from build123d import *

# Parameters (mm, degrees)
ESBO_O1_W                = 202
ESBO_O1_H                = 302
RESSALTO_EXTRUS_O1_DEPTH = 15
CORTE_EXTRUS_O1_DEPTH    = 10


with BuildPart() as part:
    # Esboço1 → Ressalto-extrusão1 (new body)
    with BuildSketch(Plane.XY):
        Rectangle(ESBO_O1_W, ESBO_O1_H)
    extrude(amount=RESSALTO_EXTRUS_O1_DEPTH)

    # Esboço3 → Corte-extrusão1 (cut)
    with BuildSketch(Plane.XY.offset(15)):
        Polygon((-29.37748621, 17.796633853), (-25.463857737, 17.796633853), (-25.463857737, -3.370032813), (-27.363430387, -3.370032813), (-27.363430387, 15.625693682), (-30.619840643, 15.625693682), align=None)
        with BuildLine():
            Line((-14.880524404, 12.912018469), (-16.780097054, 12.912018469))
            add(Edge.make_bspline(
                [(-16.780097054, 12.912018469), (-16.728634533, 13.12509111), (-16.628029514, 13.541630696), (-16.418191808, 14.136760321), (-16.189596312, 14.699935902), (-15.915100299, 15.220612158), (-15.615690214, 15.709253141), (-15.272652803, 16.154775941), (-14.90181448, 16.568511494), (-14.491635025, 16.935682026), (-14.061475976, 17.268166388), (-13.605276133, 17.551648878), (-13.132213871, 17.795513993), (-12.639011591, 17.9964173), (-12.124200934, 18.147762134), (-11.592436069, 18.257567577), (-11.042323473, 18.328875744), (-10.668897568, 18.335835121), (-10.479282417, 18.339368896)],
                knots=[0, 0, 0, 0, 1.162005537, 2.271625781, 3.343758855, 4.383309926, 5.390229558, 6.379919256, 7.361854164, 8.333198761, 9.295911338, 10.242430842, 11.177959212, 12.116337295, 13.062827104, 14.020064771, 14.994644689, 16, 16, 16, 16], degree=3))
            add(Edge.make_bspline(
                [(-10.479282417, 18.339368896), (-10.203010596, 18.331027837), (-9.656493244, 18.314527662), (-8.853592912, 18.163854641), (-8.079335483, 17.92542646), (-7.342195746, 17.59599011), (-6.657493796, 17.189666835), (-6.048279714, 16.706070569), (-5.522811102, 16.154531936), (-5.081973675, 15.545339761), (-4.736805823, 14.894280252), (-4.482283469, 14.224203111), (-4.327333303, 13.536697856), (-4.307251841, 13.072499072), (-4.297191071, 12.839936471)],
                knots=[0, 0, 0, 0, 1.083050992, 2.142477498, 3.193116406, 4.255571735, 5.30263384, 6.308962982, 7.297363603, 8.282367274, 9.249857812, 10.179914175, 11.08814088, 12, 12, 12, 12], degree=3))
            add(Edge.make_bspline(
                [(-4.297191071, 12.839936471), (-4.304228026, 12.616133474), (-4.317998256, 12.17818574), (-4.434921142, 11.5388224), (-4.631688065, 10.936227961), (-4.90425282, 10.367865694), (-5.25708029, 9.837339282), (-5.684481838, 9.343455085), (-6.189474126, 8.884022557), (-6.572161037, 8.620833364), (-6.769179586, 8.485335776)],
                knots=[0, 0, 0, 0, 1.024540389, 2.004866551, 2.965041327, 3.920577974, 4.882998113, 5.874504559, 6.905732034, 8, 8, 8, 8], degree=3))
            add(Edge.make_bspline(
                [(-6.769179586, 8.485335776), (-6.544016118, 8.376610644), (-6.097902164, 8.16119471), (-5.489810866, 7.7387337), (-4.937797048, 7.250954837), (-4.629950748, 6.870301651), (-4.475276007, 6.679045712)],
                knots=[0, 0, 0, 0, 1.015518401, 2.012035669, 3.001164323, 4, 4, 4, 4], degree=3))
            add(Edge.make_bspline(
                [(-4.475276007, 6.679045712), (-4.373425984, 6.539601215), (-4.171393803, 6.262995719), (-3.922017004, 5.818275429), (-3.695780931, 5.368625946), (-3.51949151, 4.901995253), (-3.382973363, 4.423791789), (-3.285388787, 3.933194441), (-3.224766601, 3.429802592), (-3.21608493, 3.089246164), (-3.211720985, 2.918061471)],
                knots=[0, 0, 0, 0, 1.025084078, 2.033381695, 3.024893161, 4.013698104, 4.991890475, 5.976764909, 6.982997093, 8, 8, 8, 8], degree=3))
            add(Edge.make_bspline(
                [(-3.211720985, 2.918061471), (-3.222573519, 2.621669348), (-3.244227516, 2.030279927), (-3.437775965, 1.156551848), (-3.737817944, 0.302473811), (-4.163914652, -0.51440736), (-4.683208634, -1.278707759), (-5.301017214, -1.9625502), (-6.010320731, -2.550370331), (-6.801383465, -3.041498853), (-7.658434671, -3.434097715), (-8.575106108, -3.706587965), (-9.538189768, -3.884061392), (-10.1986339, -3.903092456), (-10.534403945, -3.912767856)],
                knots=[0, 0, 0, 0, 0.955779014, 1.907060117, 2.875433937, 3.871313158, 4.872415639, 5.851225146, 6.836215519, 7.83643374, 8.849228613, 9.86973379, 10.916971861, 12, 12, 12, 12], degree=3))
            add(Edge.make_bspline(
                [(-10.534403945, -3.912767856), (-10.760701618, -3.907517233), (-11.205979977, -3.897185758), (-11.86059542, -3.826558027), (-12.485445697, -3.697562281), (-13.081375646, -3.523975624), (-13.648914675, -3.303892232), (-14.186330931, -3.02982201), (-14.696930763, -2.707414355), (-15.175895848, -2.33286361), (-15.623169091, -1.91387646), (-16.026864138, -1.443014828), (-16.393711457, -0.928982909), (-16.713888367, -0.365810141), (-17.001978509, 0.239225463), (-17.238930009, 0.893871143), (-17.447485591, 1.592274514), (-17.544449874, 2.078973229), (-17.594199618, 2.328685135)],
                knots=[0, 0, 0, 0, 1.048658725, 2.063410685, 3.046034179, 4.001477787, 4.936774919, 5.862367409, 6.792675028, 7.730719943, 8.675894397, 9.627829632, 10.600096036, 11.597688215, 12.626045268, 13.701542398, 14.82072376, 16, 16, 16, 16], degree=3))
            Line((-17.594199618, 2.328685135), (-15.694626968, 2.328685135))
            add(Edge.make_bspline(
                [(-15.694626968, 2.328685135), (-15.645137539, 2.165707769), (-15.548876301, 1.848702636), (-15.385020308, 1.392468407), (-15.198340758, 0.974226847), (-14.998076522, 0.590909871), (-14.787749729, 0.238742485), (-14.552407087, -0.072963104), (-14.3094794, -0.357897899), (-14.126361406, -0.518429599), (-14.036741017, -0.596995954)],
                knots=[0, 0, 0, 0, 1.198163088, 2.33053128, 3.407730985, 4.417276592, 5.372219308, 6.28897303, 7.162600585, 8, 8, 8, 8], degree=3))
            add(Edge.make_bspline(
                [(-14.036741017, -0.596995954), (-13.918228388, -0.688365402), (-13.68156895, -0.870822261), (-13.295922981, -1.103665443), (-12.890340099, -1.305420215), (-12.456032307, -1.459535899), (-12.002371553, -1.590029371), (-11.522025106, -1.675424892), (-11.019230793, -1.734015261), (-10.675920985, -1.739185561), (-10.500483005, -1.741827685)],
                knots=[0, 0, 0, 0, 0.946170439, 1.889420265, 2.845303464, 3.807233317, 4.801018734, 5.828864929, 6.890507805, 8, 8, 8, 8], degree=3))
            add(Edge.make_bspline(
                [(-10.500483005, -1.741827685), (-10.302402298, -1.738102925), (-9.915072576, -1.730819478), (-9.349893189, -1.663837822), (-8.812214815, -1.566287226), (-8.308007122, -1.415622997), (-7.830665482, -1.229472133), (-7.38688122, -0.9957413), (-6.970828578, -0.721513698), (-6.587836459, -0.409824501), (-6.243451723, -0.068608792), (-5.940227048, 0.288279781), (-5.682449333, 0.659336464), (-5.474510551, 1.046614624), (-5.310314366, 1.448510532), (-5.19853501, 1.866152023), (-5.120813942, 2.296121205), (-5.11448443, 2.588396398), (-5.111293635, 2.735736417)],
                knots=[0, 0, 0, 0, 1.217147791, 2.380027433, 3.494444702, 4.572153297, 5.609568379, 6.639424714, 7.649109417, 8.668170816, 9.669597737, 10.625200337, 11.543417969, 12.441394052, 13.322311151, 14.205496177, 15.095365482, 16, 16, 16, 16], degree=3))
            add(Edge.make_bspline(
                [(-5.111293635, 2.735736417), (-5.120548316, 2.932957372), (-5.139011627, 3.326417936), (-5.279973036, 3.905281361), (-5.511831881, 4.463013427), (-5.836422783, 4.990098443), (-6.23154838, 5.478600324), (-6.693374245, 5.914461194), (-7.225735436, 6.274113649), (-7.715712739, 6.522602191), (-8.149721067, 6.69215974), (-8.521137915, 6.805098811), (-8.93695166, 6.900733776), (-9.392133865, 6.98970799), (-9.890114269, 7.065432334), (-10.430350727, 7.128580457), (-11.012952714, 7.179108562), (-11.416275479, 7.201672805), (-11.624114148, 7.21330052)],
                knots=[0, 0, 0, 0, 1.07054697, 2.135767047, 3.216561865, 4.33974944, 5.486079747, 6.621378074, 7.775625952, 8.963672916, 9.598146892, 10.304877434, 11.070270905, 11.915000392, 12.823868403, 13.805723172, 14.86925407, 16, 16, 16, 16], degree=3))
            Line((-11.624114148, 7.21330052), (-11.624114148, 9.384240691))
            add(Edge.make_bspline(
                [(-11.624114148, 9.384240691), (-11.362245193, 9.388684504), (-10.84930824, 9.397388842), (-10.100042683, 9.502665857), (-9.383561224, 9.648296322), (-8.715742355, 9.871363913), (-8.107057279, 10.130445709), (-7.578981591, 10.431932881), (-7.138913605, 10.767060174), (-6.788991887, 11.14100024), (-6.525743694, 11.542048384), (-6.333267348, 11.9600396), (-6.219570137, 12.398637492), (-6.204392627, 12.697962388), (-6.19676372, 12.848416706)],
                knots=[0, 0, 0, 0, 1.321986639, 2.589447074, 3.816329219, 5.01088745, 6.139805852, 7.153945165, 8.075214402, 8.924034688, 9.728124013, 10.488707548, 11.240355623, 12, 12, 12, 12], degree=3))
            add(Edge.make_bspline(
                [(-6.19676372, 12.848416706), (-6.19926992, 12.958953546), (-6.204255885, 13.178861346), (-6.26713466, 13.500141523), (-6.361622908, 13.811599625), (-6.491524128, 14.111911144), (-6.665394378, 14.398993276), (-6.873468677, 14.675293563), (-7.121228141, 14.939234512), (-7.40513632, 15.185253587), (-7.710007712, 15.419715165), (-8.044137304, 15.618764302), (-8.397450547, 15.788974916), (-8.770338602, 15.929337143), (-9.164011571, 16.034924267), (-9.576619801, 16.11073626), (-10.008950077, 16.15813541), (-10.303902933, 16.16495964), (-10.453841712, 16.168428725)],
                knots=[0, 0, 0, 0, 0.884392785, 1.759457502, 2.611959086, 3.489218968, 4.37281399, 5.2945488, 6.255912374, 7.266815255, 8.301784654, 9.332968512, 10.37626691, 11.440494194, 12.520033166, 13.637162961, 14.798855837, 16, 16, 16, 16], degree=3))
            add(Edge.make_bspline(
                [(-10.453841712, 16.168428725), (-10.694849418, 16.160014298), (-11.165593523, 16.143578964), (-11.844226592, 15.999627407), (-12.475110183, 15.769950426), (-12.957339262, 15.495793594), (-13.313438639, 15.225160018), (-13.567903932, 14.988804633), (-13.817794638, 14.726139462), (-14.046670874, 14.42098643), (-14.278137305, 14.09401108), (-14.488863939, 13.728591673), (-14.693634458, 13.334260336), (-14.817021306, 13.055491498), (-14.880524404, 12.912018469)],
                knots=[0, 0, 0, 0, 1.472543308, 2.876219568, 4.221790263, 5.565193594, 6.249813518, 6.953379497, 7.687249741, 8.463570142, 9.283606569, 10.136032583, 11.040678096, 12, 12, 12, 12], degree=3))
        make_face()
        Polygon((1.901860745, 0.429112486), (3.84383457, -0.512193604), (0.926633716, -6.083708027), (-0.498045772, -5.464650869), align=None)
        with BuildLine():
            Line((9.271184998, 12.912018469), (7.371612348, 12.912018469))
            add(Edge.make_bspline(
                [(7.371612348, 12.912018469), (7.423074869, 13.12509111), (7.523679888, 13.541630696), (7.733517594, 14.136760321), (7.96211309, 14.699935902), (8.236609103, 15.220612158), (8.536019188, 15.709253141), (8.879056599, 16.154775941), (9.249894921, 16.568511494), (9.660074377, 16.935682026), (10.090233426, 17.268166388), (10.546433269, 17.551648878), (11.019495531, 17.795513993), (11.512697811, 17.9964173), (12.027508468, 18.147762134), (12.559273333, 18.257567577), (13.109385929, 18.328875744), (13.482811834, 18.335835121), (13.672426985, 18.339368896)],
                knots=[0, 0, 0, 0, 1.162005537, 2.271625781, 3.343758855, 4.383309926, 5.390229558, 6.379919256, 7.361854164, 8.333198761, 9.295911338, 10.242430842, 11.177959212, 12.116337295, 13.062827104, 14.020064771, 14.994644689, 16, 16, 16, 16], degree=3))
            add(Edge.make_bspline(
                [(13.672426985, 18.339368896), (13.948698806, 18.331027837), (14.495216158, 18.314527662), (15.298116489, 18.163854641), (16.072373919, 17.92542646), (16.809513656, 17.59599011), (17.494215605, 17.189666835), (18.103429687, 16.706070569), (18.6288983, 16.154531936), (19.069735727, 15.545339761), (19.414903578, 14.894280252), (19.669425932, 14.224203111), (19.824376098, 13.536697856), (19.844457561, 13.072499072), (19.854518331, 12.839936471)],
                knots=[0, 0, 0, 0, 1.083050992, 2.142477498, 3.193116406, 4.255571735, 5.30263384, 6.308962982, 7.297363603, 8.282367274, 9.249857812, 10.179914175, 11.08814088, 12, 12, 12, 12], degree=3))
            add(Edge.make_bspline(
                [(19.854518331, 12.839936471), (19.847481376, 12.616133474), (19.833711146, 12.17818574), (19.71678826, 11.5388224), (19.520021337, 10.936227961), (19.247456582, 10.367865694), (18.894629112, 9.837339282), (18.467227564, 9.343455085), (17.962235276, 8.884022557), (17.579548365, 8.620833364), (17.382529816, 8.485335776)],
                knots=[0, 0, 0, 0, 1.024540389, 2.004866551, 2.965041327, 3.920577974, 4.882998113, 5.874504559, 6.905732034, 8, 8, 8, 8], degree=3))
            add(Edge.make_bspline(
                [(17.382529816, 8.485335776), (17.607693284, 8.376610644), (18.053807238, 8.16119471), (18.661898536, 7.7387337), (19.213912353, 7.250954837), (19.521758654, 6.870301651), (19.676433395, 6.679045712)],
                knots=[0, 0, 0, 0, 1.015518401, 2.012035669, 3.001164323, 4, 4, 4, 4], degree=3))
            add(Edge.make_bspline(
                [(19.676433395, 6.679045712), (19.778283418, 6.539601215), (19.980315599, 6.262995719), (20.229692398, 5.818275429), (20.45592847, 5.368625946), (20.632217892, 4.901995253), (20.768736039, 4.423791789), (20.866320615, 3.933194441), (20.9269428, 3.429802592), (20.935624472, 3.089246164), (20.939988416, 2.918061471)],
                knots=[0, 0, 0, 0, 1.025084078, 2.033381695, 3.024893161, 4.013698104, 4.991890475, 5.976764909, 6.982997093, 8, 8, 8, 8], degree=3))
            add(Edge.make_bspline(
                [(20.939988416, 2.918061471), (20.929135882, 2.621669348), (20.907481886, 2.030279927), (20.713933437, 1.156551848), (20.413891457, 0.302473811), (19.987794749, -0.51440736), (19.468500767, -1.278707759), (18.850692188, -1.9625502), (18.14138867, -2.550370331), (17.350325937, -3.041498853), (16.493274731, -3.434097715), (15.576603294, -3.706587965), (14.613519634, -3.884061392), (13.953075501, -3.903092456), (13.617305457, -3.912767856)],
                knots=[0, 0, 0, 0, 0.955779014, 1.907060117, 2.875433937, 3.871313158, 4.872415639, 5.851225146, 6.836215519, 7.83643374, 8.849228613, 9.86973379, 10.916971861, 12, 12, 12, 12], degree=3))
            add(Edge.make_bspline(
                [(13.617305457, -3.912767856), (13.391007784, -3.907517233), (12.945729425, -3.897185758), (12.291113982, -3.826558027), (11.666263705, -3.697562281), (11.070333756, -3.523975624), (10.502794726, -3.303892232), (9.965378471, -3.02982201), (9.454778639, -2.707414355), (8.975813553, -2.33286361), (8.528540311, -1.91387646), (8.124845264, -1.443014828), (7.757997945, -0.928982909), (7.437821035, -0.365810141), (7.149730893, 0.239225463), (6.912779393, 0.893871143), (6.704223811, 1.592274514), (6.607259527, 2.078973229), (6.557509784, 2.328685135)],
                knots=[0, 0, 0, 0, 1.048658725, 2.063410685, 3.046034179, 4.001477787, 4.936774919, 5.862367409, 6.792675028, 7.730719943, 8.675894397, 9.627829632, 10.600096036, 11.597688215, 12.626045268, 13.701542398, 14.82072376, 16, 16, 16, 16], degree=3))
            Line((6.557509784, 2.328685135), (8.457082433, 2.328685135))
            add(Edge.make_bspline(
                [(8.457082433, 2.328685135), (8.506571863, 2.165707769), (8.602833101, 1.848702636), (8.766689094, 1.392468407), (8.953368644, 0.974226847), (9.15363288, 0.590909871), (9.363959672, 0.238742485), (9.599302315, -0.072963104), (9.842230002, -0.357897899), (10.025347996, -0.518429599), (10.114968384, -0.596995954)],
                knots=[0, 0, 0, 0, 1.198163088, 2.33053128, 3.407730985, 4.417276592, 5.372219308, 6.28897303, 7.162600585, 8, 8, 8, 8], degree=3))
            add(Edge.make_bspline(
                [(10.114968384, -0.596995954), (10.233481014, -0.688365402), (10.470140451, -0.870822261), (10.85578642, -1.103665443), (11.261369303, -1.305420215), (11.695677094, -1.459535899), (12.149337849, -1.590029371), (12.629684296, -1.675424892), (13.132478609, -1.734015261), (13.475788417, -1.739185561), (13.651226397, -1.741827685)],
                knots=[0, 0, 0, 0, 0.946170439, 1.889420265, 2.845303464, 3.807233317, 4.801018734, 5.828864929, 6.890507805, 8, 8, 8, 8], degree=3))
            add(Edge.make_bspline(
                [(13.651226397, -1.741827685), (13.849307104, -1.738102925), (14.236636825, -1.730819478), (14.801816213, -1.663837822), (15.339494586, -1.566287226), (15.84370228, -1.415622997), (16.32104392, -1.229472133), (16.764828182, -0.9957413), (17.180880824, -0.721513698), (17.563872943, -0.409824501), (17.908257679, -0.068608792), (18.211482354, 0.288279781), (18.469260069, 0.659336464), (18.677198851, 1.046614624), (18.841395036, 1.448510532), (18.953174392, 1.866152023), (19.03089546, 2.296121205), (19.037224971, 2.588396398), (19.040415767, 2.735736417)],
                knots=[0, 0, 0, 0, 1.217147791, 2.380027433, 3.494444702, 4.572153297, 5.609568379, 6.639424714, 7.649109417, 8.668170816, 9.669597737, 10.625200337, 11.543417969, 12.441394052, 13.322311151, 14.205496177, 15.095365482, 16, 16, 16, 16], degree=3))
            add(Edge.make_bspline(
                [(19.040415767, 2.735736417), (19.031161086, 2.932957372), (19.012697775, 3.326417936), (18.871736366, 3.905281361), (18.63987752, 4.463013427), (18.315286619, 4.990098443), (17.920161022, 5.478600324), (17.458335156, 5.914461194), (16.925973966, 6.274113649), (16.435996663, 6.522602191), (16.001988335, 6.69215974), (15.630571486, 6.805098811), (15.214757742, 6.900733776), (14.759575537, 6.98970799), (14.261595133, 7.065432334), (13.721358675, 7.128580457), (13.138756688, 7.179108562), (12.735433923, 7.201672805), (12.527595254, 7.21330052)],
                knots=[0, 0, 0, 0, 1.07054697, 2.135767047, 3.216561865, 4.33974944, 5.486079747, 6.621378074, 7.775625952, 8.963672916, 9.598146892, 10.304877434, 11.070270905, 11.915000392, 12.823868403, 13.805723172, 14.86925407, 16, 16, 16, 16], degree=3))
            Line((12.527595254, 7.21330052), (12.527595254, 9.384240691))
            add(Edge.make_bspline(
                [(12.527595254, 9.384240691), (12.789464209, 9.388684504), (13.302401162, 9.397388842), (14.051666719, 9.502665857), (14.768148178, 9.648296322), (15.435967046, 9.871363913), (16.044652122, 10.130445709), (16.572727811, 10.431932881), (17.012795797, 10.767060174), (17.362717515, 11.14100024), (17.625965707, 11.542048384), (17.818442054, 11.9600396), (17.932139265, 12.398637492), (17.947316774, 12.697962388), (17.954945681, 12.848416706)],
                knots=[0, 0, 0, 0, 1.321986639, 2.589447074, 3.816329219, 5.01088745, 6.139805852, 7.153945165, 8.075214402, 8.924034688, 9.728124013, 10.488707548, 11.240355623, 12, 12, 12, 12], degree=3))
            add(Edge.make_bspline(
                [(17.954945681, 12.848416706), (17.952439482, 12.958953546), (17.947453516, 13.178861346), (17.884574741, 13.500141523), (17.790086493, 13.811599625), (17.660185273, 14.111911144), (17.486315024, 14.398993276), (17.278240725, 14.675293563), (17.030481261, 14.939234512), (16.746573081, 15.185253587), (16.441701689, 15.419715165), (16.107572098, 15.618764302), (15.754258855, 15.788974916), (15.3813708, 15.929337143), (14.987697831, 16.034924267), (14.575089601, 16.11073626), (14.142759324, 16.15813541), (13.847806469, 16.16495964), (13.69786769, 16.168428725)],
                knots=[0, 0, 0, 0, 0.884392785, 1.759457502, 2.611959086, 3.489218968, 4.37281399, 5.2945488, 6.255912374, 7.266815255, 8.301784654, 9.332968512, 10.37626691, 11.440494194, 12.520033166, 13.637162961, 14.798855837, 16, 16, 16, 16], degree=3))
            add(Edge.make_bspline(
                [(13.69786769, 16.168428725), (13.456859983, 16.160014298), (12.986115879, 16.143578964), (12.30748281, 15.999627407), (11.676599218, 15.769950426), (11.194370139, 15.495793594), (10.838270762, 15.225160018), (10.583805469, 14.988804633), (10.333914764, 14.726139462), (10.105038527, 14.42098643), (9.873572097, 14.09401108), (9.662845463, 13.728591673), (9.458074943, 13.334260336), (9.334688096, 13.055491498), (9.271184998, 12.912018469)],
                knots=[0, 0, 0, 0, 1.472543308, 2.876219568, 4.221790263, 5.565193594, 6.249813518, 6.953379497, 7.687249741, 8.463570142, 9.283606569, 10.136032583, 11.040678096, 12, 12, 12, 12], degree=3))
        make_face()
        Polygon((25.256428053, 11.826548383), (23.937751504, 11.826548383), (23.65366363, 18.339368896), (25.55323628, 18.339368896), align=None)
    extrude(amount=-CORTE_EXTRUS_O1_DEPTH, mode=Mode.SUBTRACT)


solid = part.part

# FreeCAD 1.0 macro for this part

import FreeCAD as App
import Part
import Sketcher

doc = App.newDocument("Part")
body = doc.addObject("PartDesign::Body", "Body")

# Sketch on XY plane
sketch1 = body.newObject("Sketcher::SketchObject", "Sketch")
sketch1.AttachmentSupport = (doc.getObject("XY_Plane"), [""])
sketch1.MapMode = "FlatFace"
sketch1.addGeometry([
    Part.LineSegment(App.Vector(-101, 151, 0), App.Vector(-101, -151, 0)),
    Part.LineSegment(App.Vector(-101, -151, 0), App.Vector(101, -151, 0)),
    Part.LineSegment(App.Vector(101, -151, 0), App.Vector(101, 151, 0)),
    Part.LineSegment(App.Vector(101, 151, 0), App.Vector(-101, 151, 0)),
], False)
sketch1.addConstraint([
    Sketcher.Constraint("Coincident", 0, 2, 1, 1),
    Sketcher.Constraint("Coincident", 1, 2, 2, 1),
    Sketcher.Constraint("Coincident", 2, 2, 3, 1),
    Sketcher.Constraint("Coincident", 3, 2, 0, 1),
    Sketcher.Constraint("Vertical", 0),
    Sketcher.Constraint("Horizontal", 1),
    Sketcher.Constraint("Vertical", 2),
    Sketcher.Constraint("Horizontal", 3),
    Sketcher.Constraint("Symmetric", 0, 2, 2, 2, -1, 1),
    Sketcher.Constraint("DistanceX", 1, 1, 1, 2, 202.0),
    Sketcher.Constraint("DistanceY", 0, 2, 0, 1, 302.0),
])
pad1 = body.newObject("PartDesign::Pad", "Pad")
pad1.Profile = sketch1
pad1.Length = 15

# Sketch on XY plane
sketch2 = body.newObject("Sketcher::SketchObject", "Sketch001")
sketch2.AttachmentSupport = (doc.getObject("XY_Plane"), [""])
sketch2.MapMode = "FlatFace"
sketch2.AttachmentOffset = App.Placement(App.Vector(0, 0, 15), App.Rotation())
sketch2.addGeometry([
    Part.LineSegment(App.Vector(-25.463858, 17.796634, 0), App.Vector(-29.377486, 17.796634, 0)),  # 0
    Part.LineSegment(App.Vector(-29.377486, 17.796634, 0), App.Vector(-30.619841, 15.625694, 0)),  # 1
    Part.LineSegment(App.Vector(-30.619841, 15.625694, 0), App.Vector(-27.36343, 15.625694, 0)),  # 2
    Part.LineSegment(App.Vector(-27.36343, 15.625694, 0), App.Vector(-27.36343, -3.370033, 0)),  # 3
    Part.LineSegment(App.Vector(-27.36343, -3.370033, 0), App.Vector(-25.463858, -3.370033, 0)),  # 4
    Part.LineSegment(App.Vector(-25.463858, -3.370033, 0), App.Vector(-25.463858, 17.796634, 0)),  # 5
    Part.LineSegment(App.Vector(-16.780097, 12.912018, 0), App.Vector(-14.880524, 12.912018, 0)),  # 6
    Part.BSplineCurve([App.Vector(-10.453842, 16.168429, 0), App.Vector(-10.694849, 16.160014, 0), App.Vector(-11.165594, 16.143579, 0), App.Vector(-11.844227, 15.999627, 0), App.Vector(-12.47511, 15.76995, 0), App.Vector(-12.957339, 15.495794, 0), App.Vector(-13.313439, 15.22516, 0), App.Vector(-13.567904, 14.988805, 0), App.Vector(-13.817795, 14.726139, 0), App.Vector(-14.046671, 14.420986, 0), App.Vector(-14.278137, 14.094011, 0), App.Vector(-14.488864, 13.728592, 0), App.Vector(-14.693634, 13.33426, 0), App.Vector(-14.817021, 13.055491, 0), App.Vector(-14.880524, 12.912018, 0)], [4, 1, 1, 1, 1, 1, 1, 1, 1, 1, 1, 1, 4], [0, 1.472543308, 2.876219568, 4.221790263, 5.565193594, 6.249813518, 6.953379497, 7.687249741, 8.463570142, 9.283606569, 10.136032583, 11.040678096, 12], False, 3, [1, 1, 1, 1, 1, 1, 1, 1, 1, 1, 1, 1, 1, 1, 1], False),  # 7
    Part.BSplineCurve([App.Vector(-6.196764, 12.848417, 0), App.Vector(-6.19927, 12.958954, 0), App.Vector(-6.204256, 13.178861, 0), App.Vector(-6.267135, 13.500142, 0), App.Vector(-6.361623, 13.8116, 0), App.Vector(-6.491524, 14.111911, 0), App.Vector(-6.665394, 14.398993, 0), App.Vector(-6.873469, 14.675294, 0), App.Vector(-7.121228, 14.939235, 0), App.Vector(-7.405136, 15.185254, 0), App.Vector(-7.710008, 15.419715, 0), App.Vector(-8.044137, 15.618764, 0), App.Vector(-8.397451, 15.788975, 0), App.Vector(-8.770339, 15.929337, 0), App.Vector(-9.164012, 16.034924, 0), App.Vector(-9.57662, 16.110736, 0), App.Vector(-10.00895, 16.158135, 0), App.Vector(-10.303903, 16.16496, 0), App.Vector(-10.453842, 16.168429, 0)], [4, 1, 1, 1, 1, 1, 1, 1, 1, 1, 1, 1, 1, 1, 1, 1, 4], [0, 0.884392785, 1.759457502, 2.611959086, 3.489218968, 4.37281399, 5.2945488, 6.255912374, 7.266815255, 8.301784654, 9.332968512, 10.37626691, 11.440494194, 12.520033166, 13.637162961, 14.798855837, 16], False, 3, [1, 1, 1, 1, 1, 1, 1, 1, 1, 1, 1, 1, 1, 1, 1, 1, 1, 1, 1], False),  # 8
    Part.BSplineCurve([App.Vector(-11.624114, 9.384241, 0), App.Vector(-11.362245, 9.388685, 0), App.Vector(-10.849308, 9.397389, 0), App.Vector(-10.100043, 9.502666, 0), App.Vector(-9.383561, 9.648296, 0), App.Vector(-8.715742, 9.871364, 0), App.Vector(-8.107057, 10.130446, 0), App.Vector(-7.578982, 10.431933, 0), App.Vector(-7.138914, 10.76706, 0), App.Vector(-6.788992, 11.141, 0), App.Vector(-6.525744, 11.542048, 0), App.Vector(-6.333267, 11.96004, 0), App.Vector(-6.21957, 12.398637, 0), App.Vector(-6.204393, 12.697962, 0), App.Vector(-6.196764, 12.848417, 0)], [4, 1, 1, 1, 1, 1, 1, 1, 1, 1, 1, 1, 4], [0, 1.321986639, 2.589447074, 3.816329219, 5.01088745, 6.139805852, 7.153945165, 8.075214402, 8.924034688, 9.728124013, 10.488707548, 11.240355623, 12], False, 3, [1, 1, 1, 1, 1, 1, 1, 1, 1, 1, 1, 1, 1, 1, 1], False),  # 9
    Part.LineSegment(App.Vector(-11.624114, 9.384241, 0), App.Vector(-11.624114, 7.213301, 0)),  # 10
    Part.BSplineCurve([App.Vector(-5.111294, 2.735736, 0), App.Vector(-5.120548, 2.932957, 0), App.Vector(-5.139012, 3.326418, 0), App.Vector(-5.279973, 3.905281, 0), App.Vector(-5.511832, 4.463013, 0), App.Vector(-5.836423, 4.990098, 0), App.Vector(-6.231548, 5.4786, 0), App.Vector(-6.693374, 5.914461, 0), App.Vector(-7.225735, 6.274114, 0), App.Vector(-7.715713, 6.522602, 0), App.Vector(-8.149721, 6.69216, 0), App.Vector(-8.521138, 6.805099, 0), App.Vector(-8.936952, 6.900734, 0), App.Vector(-9.392134, 6.989708, 0), App.Vector(-9.890114, 7.065432, 0), App.Vector(-10.430351, 7.12858, 0), App.Vector(-11.012953, 7.179109, 0), App.Vector(-11.416275, 7.201673, 0), App.Vector(-11.624114, 7.213301, 0)], [4, 1, 1, 1, 1, 1, 1, 1, 1, 1, 1, 1, 1, 1, 1, 1, 4], [0, 1.07054697, 2.135767047, 3.216561865, 4.33974944, 5.486079747, 6.621378074, 7.775625952, 8.963672916, 9.598146892, 10.304877434, 11.070270905, 11.915000392, 12.823868403, 13.805723172, 14.86925407, 16], False, 3, [1, 1, 1, 1, 1, 1, 1, 1, 1, 1, 1, 1, 1, 1, 1, 1, 1, 1, 1], False),  # 11
    Part.BSplineCurve([App.Vector(-10.500483, -1.741828, 0), App.Vector(-10.302402, -1.738103, 0), App.Vector(-9.915073, -1.730819, 0), App.Vector(-9.349893, -1.663838, 0), App.Vector(-8.812215, -1.566287, 0), App.Vector(-8.308007, -1.415623, 0), App.Vector(-7.830665, -1.229472, 0), App.Vector(-7.386881, -0.995741, 0), App.Vector(-6.970829, -0.721514, 0), App.Vector(-6.587836, -0.409825, 0), App.Vector(-6.243452, -0.068609, 0), App.Vector(-5.940227, 0.28828, 0), App.Vector(-5.682449, 0.659336, 0), App.Vector(-5.474511, 1.046615, 0), App.Vector(-5.310314, 1.448511, 0), App.Vector(-5.198535, 1.866152, 0), App.Vector(-5.120814, 2.296121, 0), App.Vector(-5.114484, 2.588396, 0), App.Vector(-5.111294, 2.735736, 0)], [4, 1, 1, 1, 1, 1, 1, 1, 1, 1, 1, 1, 1, 1, 1, 1, 4], [0, 1.217147791, 2.380027433, 3.494444702, 4.572153297, 5.609568379, 6.639424714, 7.649109417, 8.668170816, 9.669597737, 10.625200337, 11.543417969, 12.441394052, 13.322311151, 14.205496177, 15.095365482, 16], False, 3, [1, 1, 1, 1, 1, 1, 1, 1, 1, 1, 1, 1, 1, 1, 1, 1, 1, 1, 1], False),  # 12
    Part.BSplineCurve([App.Vector(-14.036741, -0.596996, 0), App.Vector(-13.918228, -0.688365, 0), App.Vector(-13.681569, -0.870822, 0), App.Vector(-13.295923, -1.103665, 0), App.Vector(-12.89034, -1.30542, 0), App.Vector(-12.456032, -1.459536, 0), App.Vector(-12.002372, -1.590029, 0), App.Vector(-11.522025, -1.675425, 0), App.Vector(-11.019231, -1.734015, 0), App.Vector(-10.675921, -1.739186, 0), App.Vector(-10.500483, -1.741828, 0)], [4, 1, 1, 1, 1, 1, 1, 1, 4], [0, 0.946170439, 1.889420265, 2.845303464, 3.807233317, 4.801018734, 5.828864929, 6.890507805, 8], False, 3, [1, 1, 1, 1, 1, 1, 1, 1, 1, 1, 1], False),  # 13
    Part.BSplineCurve([App.Vector(-15.694627, 2.328685, 0), App.Vector(-15.645138, 2.165708, 0), App.Vector(-15.548876, 1.848703, 0), App.Vector(-15.38502, 1.392468, 0), App.Vector(-15.198341, 0.974227, 0), App.Vector(-14.998077, 0.59091, 0), App.Vector(-14.78775, 0.238742, 0), App.Vector(-14.552407, -0.072963, 0), App.Vector(-14.309479, -0.357898, 0), App.Vector(-14.126361, -0.51843, 0), App.Vector(-14.036741, -0.596996, 0)], [4, 1, 1, 1, 1, 1, 1, 1, 4], [0, 1.198163088, 2.33053128, 3.407730985, 4.417276592, 5.372219308, 6.28897303, 7.162600585, 8], False, 3, [1, 1, 1, 1, 1, 1, 1, 1, 1, 1, 1], False),  # 14
    Part.LineSegment(App.Vector(-15.694627, 2.328685, 0), App.Vector(-17.5942, 2.328685, 0)),  # 15
    Part.BSplineCurve([App.Vector(-10.534404, -3.912768, 0), App.Vector(-10.760702, -3.907517, 0), App.Vector(-11.20598, -3.897186, 0), App.Vector(-11.860595, -3.826558, 0), App.Vector(-12.485446, -3.697562, 0), App.Vector(-13.081376, -3.523976, 0), App.Vector(-13.648915, -3.303892, 0), App.Vector(-14.186331, -3.029822, 0), App.Vector(-14.696931, -2.707414, 0), App.Vector(-15.175896, -2.332864, 0), App.Vector(-15.623169, -1.913876, 0), App.Vector(-16.026864, -1.443015, 0), App.Vector(-16.393711, -0.928983, 0), App.Vector(-16.713888, -0.36581, 0), App.Vector(-17.001979, 0.239225, 0), App.Vector(-17.23893, 0.893871, 0), App.Vector(-17.447486, 1.592275, 0), App.Vector(-17.54445, 2.078973, 0), App.Vector(-17.5942, 2.328685, 0)], [4, 1, 1, 1, 1, 1, 1, 1, 1, 1, 1, 1, 1, 1, 1, 1, 4], [0, 1.048658725, 2.063410685, 3.046034179, 4.001477787, 4.936774919, 5.862367409, 6.792675028, 7.730719943, 8.675894397, 9.627829632, 10.600096036, 11.597688215, 12.626045268, 13.701542398, 14.82072376, 16], False, 3, [1, 1, 1, 1, 1, 1, 1, 1, 1, 1, 1, 1, 1, 1, 1, 1, 1, 1, 1], False),  # 16
    Part.BSplineCurve([App.Vector(-3.211721, 2.918061, 0), App.Vector(-3.222574, 2.621669, 0), App.Vector(-3.244228, 2.03028, 0), App.Vector(-3.437776, 1.156552, 0), App.Vector(-3.737818, 0.302474, 0), App.Vector(-4.163915, -0.514407, 0), App.Vector(-4.683209, -1.278708, 0), App.Vector(-5.301017, -1.96255, 0), App.Vector(-6.010321, -2.55037, 0), App.Vector(-6.801383, -3.041499, 0), App.Vector(-7.658435, -3.434098, 0), App.Vector(-8.575106, -3.706588, 0), App.Vector(-9.53819, -3.884061, 0), App.Vector(-10.198634, -3.903092, 0), App.Vector(-10.534404, -3.912768, 0)], [4, 1, 1, 1, 1, 1, 1, 1, 1, 1, 1, 1, 4], [0, 0.955779014, 1.907060117, 2.875433937, 3.871313158, 4.872415639, 5.851225146, 6.836215519, 7.83643374, 8.849228613, 9.86973379, 10.916971861, 12], False, 3, [1, 1, 1, 1, 1, 1, 1, 1, 1, 1, 1, 1, 1, 1, 1], False),  # 17
    Part.BSplineCurve([App.Vector(-4.475276, 6.679046, 0), App.Vector(-4.373426, 6.539601, 0), App.Vector(-4.171394, 6.262996, 0), App.Vector(-3.922017, 5.818275, 0), App.Vector(-3.695781, 5.368626, 0), App.Vector(-3.519492, 4.901995, 0), App.Vector(-3.382973, 4.423792, 0), App.Vector(-3.285389, 3.933194, 0), App.Vector(-3.224767, 3.429803, 0), App.Vector(-3.216085, 3.089246, 0), App.Vector(-3.211721, 2.918061, 0)], [4, 1, 1, 1, 1, 1, 1, 1, 4], [0, 1.025084078, 2.033381695, 3.024893161, 4.013698104, 4.991890475, 5.976764909, 6.982997093, 8], False, 3, [1, 1, 1, 1, 1, 1, 1, 1, 1, 1, 1], False),  # 18
    Part.BSplineCurve([App.Vector(-6.76918, 8.485336, 0), App.Vector(-6.544016, 8.376611, 0), App.Vector(-6.097902, 8.161195, 0), App.Vector(-5.489811, 7.738734, 0), App.Vector(-4.937797, 7.250955, 0), App.Vector(-4.629951, 6.870302, 0), App.Vector(-4.475276, 6.679046, 0)], [4, 1, 1, 1, 4], [0, 1.015518401, 2.012035669, 3.001164323, 4], False, 3, [1, 1, 1, 1, 1, 1, 1], False),  # 19
    Part.BSplineCurve([App.Vector(-4.297191, 12.839936, 0), App.Vector(-4.304228, 12.616133, 0), App.Vector(-4.317998, 12.178186, 0), App.Vector(-4.434921, 11.538822, 0), App.Vector(-4.631688, 10.936228, 0), App.Vector(-4.904253, 10.367866, 0), App.Vector(-5.25708, 9.837339, 0), App.Vector(-5.684482, 9.343455, 0), App.Vector(-6.189474, 8.884023, 0), App.Vector(-6.572161, 8.620833, 0), App.Vector(-6.76918, 8.485336, 0)], [4, 1, 1, 1, 1, 1, 1, 1, 4], [0, 1.024540389, 2.004866551, 2.965041327, 3.920577974, 4.882998113, 5.874504559, 6.905732034, 8], False, 3, [1, 1, 1, 1, 1, 1, 1, 1, 1, 1, 1], False),  # 20
    Part.BSplineCurve([App.Vector(-10.479282, 18.339369, 0), App.Vector(-10.203011, 18.331028, 0), App.Vector(-9.656493, 18.314528, 0), App.Vector(-8.853593, 18.163855, 0), App.Vector(-8.079335, 17.925426, 0), App.Vector(-7.342196, 17.59599, 0), App.Vector(-6.657494, 17.189667, 0), App.Vector(-6.04828, 16.706071, 0), App.Vector(-5.522811, 16.154532, 0), App.Vector(-5.081974, 15.54534, 0), App.Vector(-4.736806, 14.89428, 0), App.Vector(-4.482283, 14.224203, 0), App.Vector(-4.327333, 13.536698, 0), App.Vector(-4.307252, 13.072499, 0), App.Vector(-4.297191, 12.839936, 0)], [4, 1, 1, 1, 1, 1, 1, 1, 1, 1, 1, 1, 4], [0, 1.083050992, 2.142477498, 3.193116406, 4.255571735, 5.30263384, 6.308962982, 7.297363603, 8.282367274, 9.249857812, 10.179914175, 11.08814088, 12], False, 3, [1, 1, 1, 1, 1, 1, 1, 1, 1, 1, 1, 1, 1, 1, 1], False),  # 21
    Part.BSplineCurve([App.Vector(-16.780097, 12.912018, 0), App.Vector(-16.728635, 13.125091, 0), App.Vector(-16.62803, 13.541631, 0), App.Vector(-16.418192, 14.13676, 0), App.Vector(-16.189596, 14.699936, 0), App.Vector(-15.9151, 15.220612, 0), App.Vector(-15.61569, 15.709253, 0), App.Vector(-15.272653, 16.154776, 0), App.Vector(-14.901814, 16.568511, 0), App.Vector(-14.491635, 16.935682, 0), App.Vector(-14.061476, 17.268166, 0), App.Vector(-13.605276, 17.551649, 0), App.Vector(-13.132214, 17.795514, 0), App.Vector(-12.639012, 17.996417, 0), App.Vector(-12.124201, 18.147762, 0), App.Vector(-11.592436, 18.257568, 0), App.Vector(-11.042323, 18.328876, 0), App.Vector(-10.668898, 18.335835, 0), App.Vector(-10.479282, 18.339369, 0)], [4, 1, 1, 1, 1, 1, 1, 1, 1, 1, 1, 1, 1, 1, 1, 1, 4], [0, 1.162005537, 2.271625781, 3.343758855, 4.383309926, 5.390229558, 6.379919256, 7.361854164, 8.333198761, 9.295911338, 10.242430842, 11.177959212, 12.116337295, 13.062827104, 14.020064771, 14.994644689, 16], False, 3, [1, 1, 1, 1, 1, 1, 1, 1, 1, 1, 1, 1, 1, 1, 1, 1, 1, 1, 1], False),  # 22
    Part.LineSegment(App.Vector(3.843835, -0.512194, 0), App.Vector(1.901861, 0.429112, 0)),  # 23
    Part.LineSegment(App.Vector(1.901861, 0.429112, 0), App.Vector(-0.498046, -5.464651, 0)),  # 24
    Part.LineSegment(App.Vector(-0.498046, -5.464651, 0), App.Vector(0.926634, -6.083708, 0)),  # 25
    Part.LineSegment(App.Vector(0.926634, -6.083708, 0), App.Vector(3.843835, -0.512194, 0)),  # 26
    Part.LineSegment(App.Vector(7.371612, 12.912018, 0), App.Vector(9.271185, 12.912018, 0)),  # 27
    Part.BSplineCurve([App.Vector(13.697868, 16.168429, 0), App.Vector(13.45686, 16.160014, 0), App.Vector(12.986116, 16.143579, 0), App.Vector(12.307483, 15.999627, 0), App.Vector(11.676599, 15.76995, 0), App.Vector(11.19437, 15.495794, 0), App.Vector(10.838271, 15.22516, 0), App.Vector(10.583805, 14.988805, 0), App.Vector(10.333915, 14.726139, 0), App.Vector(10.105039, 14.420986, 0), App.Vector(9.873572, 14.094011, 0), App.Vector(9.662845, 13.728592, 0), App.Vector(9.458075, 13.33426, 0), App.Vector(9.334688, 13.055491, 0), App.Vector(9.271185, 12.912018, 0)], [4, 1, 1, 1, 1, 1, 1, 1, 1, 1, 1, 1, 4], [0, 1.472543308, 2.876219568, 4.221790263, 5.565193594, 6.249813518, 6.953379497, 7.687249741, 8.463570142, 9.283606569, 10.136032583, 11.040678096, 12], False, 3, [1, 1, 1, 1, 1, 1, 1, 1, 1, 1, 1, 1, 1, 1, 1], False),  # 28
    Part.BSplineCurve([App.Vector(17.954946, 12.848417, 0), App.Vector(17.952439, 12.958954, 0), App.Vector(17.947454, 13.178861, 0), App.Vector(17.884575, 13.500142, 0), App.Vector(17.790086, 13.8116, 0), App.Vector(17.660185, 14.111911, 0), App.Vector(17.486315, 14.398993, 0), App.Vector(17.278241, 14.675294, 0), App.Vector(17.030481, 14.939235, 0), App.Vector(16.746573, 15.185254, 0), App.Vector(16.441702, 15.419715, 0), App.Vector(16.107572, 15.618764, 0), App.Vector(15.754259, 15.788975, 0), App.Vector(15.381371, 15.929337, 0), App.Vector(14.987698, 16.034924, 0), App.Vector(14.57509, 16.110736, 0), App.Vector(14.142759, 16.158135, 0), App.Vector(13.847806, 16.16496, 0), App.Vector(13.697868, 16.168429, 0)], [4, 1, 1, 1, 1, 1, 1, 1, 1, 1, 1, 1, 1, 1, 1, 1, 4], [0, 0.884392785, 1.759457502, 2.611959086, 3.489218968, 4.37281399, 5.2945488, 6.255912374, 7.266815255, 8.301784654, 9.332968512, 10.37626691, 11.440494194, 12.520033166, 13.637162961, 14.798855837, 16], False, 3, [1, 1, 1, 1, 1, 1, 1, 1, 1, 1, 1, 1, 1, 1, 1, 1, 1, 1, 1], False),  # 29
    Part.BSplineCurve([App.Vector(12.527595, 9.384241, 0), App.Vector(12.789464, 9.388685, 0), App.Vector(13.302401, 9.397389, 0), App.Vector(14.051667, 9.502666, 0), App.Vector(14.768148, 9.648296, 0), App.Vector(15.435967, 9.871364, 0), App.Vector(16.044652, 10.130446, 0), App.Vector(16.572728, 10.431933, 0), App.Vector(17.012796, 10.76706, 0), App.Vector(17.362718, 11.141, 0), App.Vector(17.625966, 11.542048, 0), App.Vector(17.818442, 11.96004, 0), App.Vector(17.932139, 12.398637, 0), App.Vector(17.947317, 12.697962, 0), App.Vector(17.954946, 12.848417, 0)], [4, 1, 1, 1, 1, 1, 1, 1, 1, 1, 1, 1, 4], [0, 1.321986639, 2.589447074, 3.816329219, 5.01088745, 6.139805852, 7.153945165, 8.075214402, 8.924034688, 9.728124013, 10.488707548, 11.240355623, 12], False, 3, [1, 1, 1, 1, 1, 1, 1, 1, 1, 1, 1, 1, 1, 1, 1], False),  # 30
    Part.LineSegment(App.Vector(12.527595, 9.384241, 0), App.Vector(12.527595, 7.213301, 0)),  # 31
    Part.BSplineCurve([App.Vector(19.040416, 2.735736, 0), App.Vector(19.031161, 2.932957, 0), App.Vector(19.012698, 3.326418, 0), App.Vector(18.871736, 3.905281, 0), App.Vector(18.639878, 4.463013, 0), App.Vector(18.315287, 4.990098, 0), App.Vector(17.920161, 5.4786, 0), App.Vector(17.458335, 5.914461, 0), App.Vector(16.925974, 6.274114, 0), App.Vector(16.435997, 6.522602, 0), App.Vector(16.001988, 6.69216, 0), App.Vector(15.630571, 6.805099, 0), App.Vector(15.214758, 6.900734, 0), App.Vector(14.759576, 6.989708, 0), App.Vector(14.261595, 7.065432, 0), App.Vector(13.721359, 7.12858, 0), App.Vector(13.138757, 7.179109, 0), App.Vector(12.735434, 7.201673, 0), App.Vector(12.527595, 7.213301, 0)], [4, 1, 1, 1, 1, 1, 1, 1, 1, 1, 1, 1, 1, 1, 1, 1, 4], [0, 1.07054697, 2.135767047, 3.216561865, 4.33974944, 5.486079747, 6.621378074, 7.775625952, 8.963672916, 9.598146892, 10.304877434, 11.070270905, 11.915000392, 12.823868403, 13.805723172, 14.86925407, 16], False, 3, [1, 1, 1, 1, 1, 1, 1, 1, 1, 1, 1, 1, 1, 1, 1, 1, 1, 1, 1], False),  # 32
    Part.BSplineCurve([App.Vector(13.651226, -1.741828, 0), App.Vector(13.849307, -1.738103, 0), App.Vector(14.236637, -1.730819, 0), App.Vector(14.801816, -1.663838, 0), App.Vector(15.339495, -1.566287, 0), App.Vector(15.843702, -1.415623, 0), App.Vector(16.321044, -1.229472, 0), App.Vector(16.764828, -0.995741, 0), App.Vector(17.180881, -0.721514, 0), App.Vector(17.563873, -0.409825, 0), App.Vector(17.908258, -0.068609, 0), App.Vector(18.211482, 0.28828, 0), App.Vector(18.46926, 0.659336, 0), App.Vector(18.677199, 1.046615, 0), App.Vector(18.841395, 1.448511, 0), App.Vector(18.953174, 1.866152, 0), App.Vector(19.030895, 2.296121, 0), App.Vector(19.037225, 2.588396, 0), App.Vector(19.040416, 2.735736, 0)], [4, 1, 1, 1, 1, 1, 1, 1, 1, 1, 1, 1, 1, 1, 1, 1, 4], [0, 1.217147791, 2.380027433, 3.494444702, 4.572153297, 5.609568379, 6.639424714, 7.649109417, 8.668170816, 9.669597737, 10.625200337, 11.543417969, 12.441394052, 13.322311151, 14.205496177, 15.095365482, 16], False, 3, [1, 1, 1, 1, 1, 1, 1, 1, 1, 1, 1, 1, 1, 1, 1, 1, 1, 1, 1], False),  # 33
    Part.BSplineCurve([App.Vector(10.114968, -0.596996, 0), App.Vector(10.233481, -0.688365, 0), App.Vector(10.47014, -0.870822, 0), App.Vector(10.855786, -1.103665, 0), App.Vector(11.261369, -1.30542, 0), App.Vector(11.695677, -1.459536, 0), App.Vector(12.149338, -1.590029, 0), App.Vector(12.629684, -1.675425, 0), App.Vector(13.132479, -1.734015, 0), App.Vector(13.475788, -1.739186, 0), App.Vector(13.651226, -1.741828, 0)], [4, 1, 1, 1, 1, 1, 1, 1, 4], [0, 0.946170439, 1.889420265, 2.845303464, 3.807233317, 4.801018734, 5.828864929, 6.890507805, 8], False, 3, [1, 1, 1, 1, 1, 1, 1, 1, 1, 1, 1], False),  # 34
    Part.BSplineCurve([App.Vector(8.457082, 2.328685, 0), App.Vector(8.506572, 2.165708, 0), App.Vector(8.602833, 1.848703, 0), App.Vector(8.766689, 1.392468, 0), App.Vector(8.953369, 0.974227, 0), App.Vector(9.153633, 0.59091, 0), App.Vector(9.36396, 0.238742, 0), App.Vector(9.599302, -0.072963, 0), App.Vector(9.84223, -0.357898, 0), App.Vector(10.025348, -0.51843, 0), App.Vector(10.114968, -0.596996, 0)], [4, 1, 1, 1, 1, 1, 1, 1, 4], [0, 1.198163088, 2.33053128, 3.407730985, 4.417276592, 5.372219308, 6.28897303, 7.162600585, 8], False, 3, [1, 1, 1, 1, 1, 1, 1, 1, 1, 1, 1], False),  # 35
    Part.LineSegment(App.Vector(8.457082, 2.328685, 0), App.Vector(6.55751, 2.328685, 0)),  # 36
    Part.BSplineCurve([App.Vector(13.617305, -3.912768, 0), App.Vector(13.391008, -3.907517, 0), App.Vector(12.945729, -3.897186, 0), App.Vector(12.291114, -3.826558, 0), App.Vector(11.666264, -3.697562, 0), App.Vector(11.070334, -3.523976, 0), App.Vector(10.502795, -3.303892, 0), App.Vector(9.965378, -3.029822, 0), App.Vector(9.454779, -2.707414, 0), App.Vector(8.975814, -2.332864, 0), App.Vector(8.52854, -1.913876, 0), App.Vector(8.124845, -1.443015, 0), App.Vector(7.757998, -0.928983, 0), App.Vector(7.437821, -0.36581, 0), App.Vector(7.149731, 0.239225, 0), App.Vector(6.912779, 0.893871, 0), App.Vector(6.704224, 1.592275, 0), App.Vector(6.60726, 2.078973, 0), App.Vector(6.55751, 2.328685, 0)], [4, 1, 1, 1, 1, 1, 1, 1, 1, 1, 1, 1, 1, 1, 1, 1, 4], [0, 1.048658725, 2.063410685, 3.046034179, 4.001477787, 4.936774919, 5.862367409, 6.792675028, 7.730719943, 8.675894397, 9.627829632, 10.600096036, 11.597688215, 12.626045268, 13.701542398, 14.82072376, 16], False, 3, [1, 1, 1, 1, 1, 1, 1, 1, 1, 1, 1, 1, 1, 1, 1, 1, 1, 1, 1], False),  # 37
    Part.BSplineCurve([App.Vector(20.939988, 2.918061, 0), App.Vector(20.929136, 2.621669, 0), App.Vector(20.907482, 2.03028, 0), App.Vector(20.713933, 1.156552, 0), App.Vector(20.413891, 0.302474, 0), App.Vector(19.987795, -0.514407, 0), App.Vector(19.468501, -1.278708, 0), App.Vector(18.850692, -1.96255, 0), App.Vector(18.141389, -2.55037, 0), App.Vector(17.350326, -3.041499, 0), App.Vector(16.493275, -3.434098, 0), App.Vector(15.576603, -3.706588, 0), App.Vector(14.61352, -3.884061, 0), App.Vector(13.953076, -3.903092, 0), App.Vector(13.617305, -3.912768, 0)], [4, 1, 1, 1, 1, 1, 1, 1, 1, 1, 1, 1, 4], [0, 0.955779014, 1.907060117, 2.875433937, 3.871313158, 4.872415639, 5.851225146, 6.836215519, 7.83643374, 8.849228613, 9.86973379, 10.916971861, 12], False, 3, [1, 1, 1, 1, 1, 1, 1, 1, 1, 1, 1, 1, 1, 1, 1], False),  # 38
    Part.BSplineCurve([App.Vector(19.676433, 6.679046, 0), App.Vector(19.778283, 6.539601, 0), App.Vector(19.980316, 6.262996, 0), App.Vector(20.229692, 5.818275, 0), App.Vector(20.455928, 5.368626, 0), App.Vector(20.632218, 4.901995, 0), App.Vector(20.768736, 4.423792, 0), App.Vector(20.866321, 3.933194, 0), App.Vector(20.926943, 3.429803, 0), App.Vector(20.935624, 3.089246, 0), App.Vector(20.939988, 2.918061, 0)], [4, 1, 1, 1, 1, 1, 1, 1, 4], [0, 1.025084078, 2.033381695, 3.024893161, 4.013698104, 4.991890475, 5.976764909, 6.982997093, 8], False, 3, [1, 1, 1, 1, 1, 1, 1, 1, 1, 1, 1], False),  # 39
    Part.BSplineCurve([App.Vector(17.38253, 8.485336, 0), App.Vector(17.607693, 8.376611, 0), App.Vector(18.053807, 8.161195, 0), App.Vector(18.661899, 7.738734, 0), App.Vector(19.213912, 7.250955, 0), App.Vector(19.521759, 6.870302, 0), App.Vector(19.676433, 6.679046, 0)], [4, 1, 1, 1, 4], [0, 1.015518401, 2.012035669, 3.001164323, 4], False, 3, [1, 1, 1, 1, 1, 1, 1], False),  # 40
    Part.BSplineCurve([App.Vector(19.854518, 12.839936, 0), App.Vector(19.847481, 12.616133, 0), App.Vector(19.833711, 12.178186, 0), App.Vector(19.716788, 11.538822, 0), App.Vector(19.520021, 10.936228, 0), App.Vector(19.247457, 10.367866, 0), App.Vector(18.894629, 9.837339, 0), App.Vector(18.467228, 9.343455, 0), App.Vector(17.962235, 8.884023, 0), App.Vector(17.579548, 8.620833, 0), App.Vector(17.38253, 8.485336, 0)], [4, 1, 1, 1, 1, 1, 1, 1, 4], [0, 1.024540389, 2.004866551, 2.965041327, 3.920577974, 4.882998113, 5.874504559, 6.905732034, 8], False, 3, [1, 1, 1, 1, 1, 1, 1, 1, 1, 1, 1], False),  # 41
    Part.BSplineCurve([App.Vector(13.672427, 18.339369, 0), App.Vector(13.948699, 18.331028, 0), App.Vector(14.495216, 18.314528, 0), App.Vector(15.298116, 18.163855, 0), App.Vector(16.072374, 17.925426, 0), App.Vector(16.809514, 17.59599, 0), App.Vector(17.494216, 17.189667, 0), App.Vector(18.10343, 16.706071, 0), App.Vector(18.628898, 16.154532, 0), App.Vector(19.069736, 15.54534, 0), App.Vector(19.414904, 14.89428, 0), App.Vector(19.669426, 14.224203, 0), App.Vector(19.824376, 13.536698, 0), App.Vector(19.844458, 13.072499, 0), App.Vector(19.854518, 12.839936, 0)], [4, 1, 1, 1, 1, 1, 1, 1, 1, 1, 1, 1, 4], [0, 1.083050992, 2.142477498, 3.193116406, 4.255571735, 5.30263384, 6.308962982, 7.297363603, 8.282367274, 9.249857812, 10.179914175, 11.08814088, 12], False, 3, [1, 1, 1, 1, 1, 1, 1, 1, 1, 1, 1, 1, 1, 1, 1], False),  # 42
    Part.BSplineCurve([App.Vector(7.371612, 12.912018, 0), App.Vector(7.423075, 13.125091, 0), App.Vector(7.52368, 13.541631, 0), App.Vector(7.733518, 14.13676, 0), App.Vector(7.962113, 14.699936, 0), App.Vector(8.236609, 15.220612, 0), App.Vector(8.536019, 15.709253, 0), App.Vector(8.879057, 16.154776, 0), App.Vector(9.249895, 16.568511, 0), App.Vector(9.660074, 16.935682, 0), App.Vector(10.090233, 17.268166, 0), App.Vector(10.546433, 17.551649, 0), App.Vector(11.019496, 17.795514, 0), App.Vector(11.512698, 17.996417, 0), App.Vector(12.027508, 18.147762, 0), App.Vector(12.559273, 18.257568, 0), App.Vector(13.109386, 18.328876, 0), App.Vector(13.482812, 18.335835, 0), App.Vector(13.672427, 18.339369, 0)], [4, 1, 1, 1, 1, 1, 1, 1, 1, 1, 1, 1, 1, 1, 1, 1, 4], [0, 1.162005537, 2.271625781, 3.343758855, 4.383309926, 5.390229558, 6.379919256, 7.361854164, 8.333198761, 9.295911338, 10.242430842, 11.177959212, 12.116337295, 13.062827104, 14.020064771, 14.994644689, 16], False, 3, [1, 1, 1, 1, 1, 1, 1, 1, 1, 1, 1, 1, 1, 1, 1, 1, 1, 1, 1], False),  # 43
    Part.LineSegment(App.Vector(23.937752, 11.826548, 0), App.Vector(25.256428, 11.826548, 0)),  # 44
    Part.LineSegment(App.Vector(25.256428, 11.826548, 0), App.Vector(25.553236, 18.339369, 0)),  # 45
    Part.LineSegment(App.Vector(25.553236, 18.339369, 0), App.Vector(23.653664, 18.339369, 0)),  # 46
    Part.LineSegment(App.Vector(23.653664, 18.339369, 0), App.Vector(23.937752, 11.826548, 0)),  # 47
], False)
sketch2.addConstraint([
    Sketcher.Constraint("Block", 7),
    Sketcher.Constraint("Block", 8),
    Sketcher.Constraint("Block", 9),
    Sketcher.Constraint("Block", 11),
    Sketcher.Constraint("Block", 12),
    Sketcher.Constraint("Block", 13),
    Sketcher.Constraint("Block", 14),
    Sketcher.Constraint("Block", 16),
    Sketcher.Constraint("Block", 17),
    Sketcher.Constraint("Block", 18),
    Sketcher.Constraint("Block", 19),
    Sketcher.Constraint("Block", 20),
    Sketcher.Constraint("Block", 21),
    Sketcher.Constraint("Block", 22),
    Sketcher.Constraint("Block", 28),
    Sketcher.Constraint("Block", 29),
    Sketcher.Constraint("Block", 30),
    Sketcher.Constraint("Block", 32),
    Sketcher.Constraint("Block", 33),
    Sketcher.Constraint("Block", 34),
    Sketcher.Constraint("Block", 35),
    Sketcher.Constraint("Block", 37),
    Sketcher.Constraint("Block", 38),
    Sketcher.Constraint("Block", 39),
    Sketcher.Constraint("Block", 40),
    Sketcher.Constraint("Block", 41),
    Sketcher.Constraint("Block", 42),
    Sketcher.Constraint("Block", 43),
    Sketcher.Constraint("Coincident", 0, 2, 1, 1),
    Sketcher.Constraint("Coincident", 1, 2, 2, 1),
    Sketcher.Constraint("Coincident", 2, 2, 3, 1),
    Sketcher.Constraint("Coincident", 3, 2, 4, 1),
    Sketcher.Constraint("Coincident", 4, 2, 5, 1),
    Sketcher.Constraint("Coincident", 5, 2, 0, 1),
    Sketcher.Constraint("Coincident", 6, 2, 7, 2),
    Sketcher.Constraint("Coincident", 9, 1, 10, 1),
    Sketcher.Constraint("Coincident", 10, 2, 11, 2),
    Sketcher.Constraint("Coincident", 14, 1, 15, 1),
    Sketcher.Constraint("Coincident", 15, 2, 16, 2),
    Sketcher.Constraint("Coincident", 22, 1, 6, 1),
    Sketcher.Constraint("Coincident", 23, 2, 24, 1),
    Sketcher.Constraint("Coincident", 24, 2, 25, 1),
    Sketcher.Constraint("Coincident", 25, 2, 26, 1),
    Sketcher.Constraint("Coincident", 26, 2, 23, 1),
    Sketcher.Constraint("Coincident", 27, 2, 28, 2),
    Sketcher.Constraint("Coincident", 30, 1, 31, 1),
    Sketcher.Constraint("Coincident", 31, 2, 32, 2),
    Sketcher.Constraint("Coincident", 35, 1, 36, 1),
    Sketcher.Constraint("Coincident", 36, 2, 37, 2),
    Sketcher.Constraint("Coincident", 43, 1, 27, 1),
    Sketcher.Constraint("Coincident", 44, 2, 45, 1),
    Sketcher.Constraint("Coincident", 45, 2, 46, 1),
    Sketcher.Constraint("Coincident", 46, 2, 47, 1),
    Sketcher.Constraint("Coincident", 47, 2, 44, 1),
    Sketcher.Constraint("Horizontal", 0),
    Sketcher.Constraint("Horizontal", 2),
    Sketcher.Constraint("Vertical", 3),
    Sketcher.Constraint("Horizontal", 4),
    Sketcher.Constraint("Vertical", 5),
    Sketcher.Constraint("Horizontal", 44),
    Sketcher.Constraint("Horizontal", 46),
    Sketcher.Constraint("DistanceX", 0, 2, 0, 1, 3.913628),
    Sketcher.Constraint("DistanceX", 2, 1, 2, 2, 3.25641),
    Sketcher.Constraint("DistanceX", 25, 2, 26, 2, 2.917201),
    Sketcher.Constraint("DistanceX", 26, 2, 45, 2, 21.709402),
    Sketcher.Constraint("Distance", 45, 6.51958),
    Sketcher.Constraint("DistanceX", 4, 1, 4, 2, 1.899573),
    Sketcher.Constraint("DistanceX", 44, 1, 44, 2, 1.318677),
    Sketcher.Constraint("DistanceX", 46, 2, 46, 1, 1.899573),
    Sketcher.Constraint("DistanceY", 3, 2, 3, 1, 18.995726),
    Sketcher.Constraint("DistanceY", 5, 1, 5, 2, 21.166667),
    Sketcher.Constraint("DistanceX", 1, 2, -1, 1, 30.619841),
    Sketcher.Constraint("DistanceX", -1, 1, 23, 2, 1.901861),
    Sketcher.Constraint("DistanceY", 24, 2, -1, 1, 5.464651),
    Sketcher.Constraint("DistanceY", 25, 2, -1, 1, 6.083708),
    Sketcher.Constraint("DistanceX", -1, 1, 44, 2, 25.256428),
    Sketcher.Constraint("DistanceY", -1, 1, 44, 2, 11.826548),
    Sketcher.Constraint("DistanceY", -1, 1, 45, 2, 18.339369),
    Sketcher.Constraint("DistanceY", 4, 2, 6, 2, 16.282051),
    Sketcher.Constraint("DistanceY", 23, 2, 10, 2, 6.784188),
    Sketcher.Constraint("DistanceX", 10, 2, 24, 2, 11.126068),
    Sketcher.Constraint("DistanceY", 26, 2, 15, 2, 2.840879),
])
pocket1 = body.newObject("PartDesign::Pocket", "Pocket")
pocket1.Profile = sketch2
pocket1.Length = 10

doc.recompute()
